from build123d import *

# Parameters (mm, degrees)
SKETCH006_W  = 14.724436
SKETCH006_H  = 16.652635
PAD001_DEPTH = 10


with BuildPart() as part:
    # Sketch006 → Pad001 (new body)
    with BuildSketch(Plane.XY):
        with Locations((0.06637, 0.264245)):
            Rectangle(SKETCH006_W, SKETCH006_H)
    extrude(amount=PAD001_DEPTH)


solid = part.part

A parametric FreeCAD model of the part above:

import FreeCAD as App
import Part
import Sketcher
from FreeCAD import Vector
Q = App.Units.Quantity


def add_polygon(sketch, points):
    """Adds a closed chain of lines whose ends are joined by coincident constraints."""
    first, n = sketch.GeometryCount, len(points)
    for a, b in zip(points, points[1:] + points[:1]):
        sketch.addGeometry(Part.LineSegment(App.Vector(*a, 0), App.Vector(*b, 0)), False)
    for i in range(n):
        sketch.addConstraint(Sketcher.Constraint("Coincident", first + i, 2, first + (i + 1) % n, 1))

doc = App.newDocument("Part")
body = doc.addObject("PartDesign::Body", "Body")

# Sketch on XY plane
sketch1 = body.newObject("Sketcher::SketchObject", "Sketch")
sketch1.AttachmentSupport = (doc.getObject("XY_Plane"), [""])
sketch1.MapMode = "FlatFace"
add_polygon(sketch1, [(-7, 9), (-7, -8), (7, -8), (7, 9)])  # lines 0-3
sketch1.addConstraint([
    Sketcher.Constraint("Vertical", 0),
    Sketcher.Constraint("Horizontal", 1),
    Sketcher.Constraint("Vertical", 2),
    Sketcher.Constraint("Horizontal", 3),
    Sketcher.Constraint("DistanceX", 1, 1, 1, 2, Q("14.724436 mm")),
    Sketcher.Constraint("DistanceY", 0, 2, 0, 1, Q("16.652635 mm")),
    Sketcher.Constraint("DistanceX", 0, 2, -1, 1, Q("7.295848 mm")),
    Sketcher.Constraint("DistanceY", 0, 2, -1, 1, Q("8.062072 mm")),
])
pad1 = body.newObject("PartDesign::Pad", "Pad")
pad1.Profile = sketch1
pad1.Length = 10

doc.recompute()
